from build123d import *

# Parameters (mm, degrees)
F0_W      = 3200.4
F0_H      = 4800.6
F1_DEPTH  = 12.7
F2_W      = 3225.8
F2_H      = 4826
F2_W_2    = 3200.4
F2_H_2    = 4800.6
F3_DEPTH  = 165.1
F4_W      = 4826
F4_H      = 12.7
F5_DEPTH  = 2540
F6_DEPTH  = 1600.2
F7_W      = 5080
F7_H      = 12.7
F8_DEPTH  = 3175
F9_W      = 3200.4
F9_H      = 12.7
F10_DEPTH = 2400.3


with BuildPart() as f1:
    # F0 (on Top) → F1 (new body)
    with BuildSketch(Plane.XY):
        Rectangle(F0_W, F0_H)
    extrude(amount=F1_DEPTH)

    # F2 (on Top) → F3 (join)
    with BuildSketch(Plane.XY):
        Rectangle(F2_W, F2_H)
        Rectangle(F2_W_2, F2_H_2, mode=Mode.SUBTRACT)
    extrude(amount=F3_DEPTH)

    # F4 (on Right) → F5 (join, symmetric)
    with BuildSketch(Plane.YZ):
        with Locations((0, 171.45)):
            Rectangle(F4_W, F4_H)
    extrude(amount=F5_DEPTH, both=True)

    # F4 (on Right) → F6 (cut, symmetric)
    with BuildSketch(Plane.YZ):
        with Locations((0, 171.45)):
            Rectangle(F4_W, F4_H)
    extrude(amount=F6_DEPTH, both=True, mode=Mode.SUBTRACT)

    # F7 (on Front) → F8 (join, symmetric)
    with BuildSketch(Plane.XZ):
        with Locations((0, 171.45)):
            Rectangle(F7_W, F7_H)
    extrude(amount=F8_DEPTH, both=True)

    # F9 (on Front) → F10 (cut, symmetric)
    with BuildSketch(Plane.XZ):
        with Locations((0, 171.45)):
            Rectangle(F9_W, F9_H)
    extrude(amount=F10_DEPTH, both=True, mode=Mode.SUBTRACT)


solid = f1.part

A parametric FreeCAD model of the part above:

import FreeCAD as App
import Part
import Sketcher
Q = App.Units.Quantity

doc = App.newDocument("Part")
body = doc.addObject("PartDesign::Body", "Body")

# Sketch on XY plane
sketch1 = doc.addObject("Sketcher::SketchObject", "Sketch")
body.addObject(sketch1)
sketch1.AttachmentSupport = (doc.XY_Plane, [""])
sketch1.MapMode = "FlatFace"
sketch1.addGeometry([
    Part.LineSegment(App.Vector(-1600, 2400, 0), App.Vector(-1600, -2400, 0)),
    Part.LineSegment(App.Vector(-1600, -2400, 0), App.Vector(1600, -2400, 0)),
    Part.LineSegment(App.Vector(1600, -2400, 0), App.Vector(1600, 2400, 0)),
    Part.LineSegment(App.Vector(1600, 2400, 0), App.Vector(-1600, 2400, 0)),
], False)
sketch1.addConstraint([
    Sketcher.Constraint("Coincident", 0, 2, 1, 1),
    Sketcher.Constraint("Coincident", 1, 2, 2, 1),
    Sketcher.Constraint("Coincident", 2, 2, 3, 1),
    Sketcher.Constraint("Coincident", 3, 2, 0, 1),
    Sketcher.Constraint("Vertical", 0),
    Sketcher.Constraint("Horizontal", 1),
    Sketcher.Constraint("Vertical", 2),
    Sketcher.Constraint("Horizontal", 3),
    Sketcher.Constraint("Symmetric", 0, 2, 2, 2, -1, 1),
    Sketcher.Constraint("DistanceX", 1, 1, 1, 2, Q("126 in")),
    Sketcher.Constraint("DistanceY", 0, 2, 0, 1, Q("189 in")),
])
pad1 = doc.addObject("PartDesign::Pad", "Pad")
body.addObject(pad1)
pad1.Profile = sketch1
pad1.Length = Q("0.5 in")

# Sketch on XY plane
sketch2 = doc.addObject("Sketcher::SketchObject", "Sketch001")
body.addObject(sketch2)
sketch2.AttachmentSupport = (doc.XY_Plane, [""])
sketch2.MapMode = "FlatFace"
sketch2.addGeometry([
    Part.LineSegment(App.Vector(-1613, 2413, 0), App.Vector(-1613, -2413, 0)),  # 0
    Part.LineSegment(App.Vector(-1613, -2413, 0), App.Vector(1613, -2413, 0)),  # 1
    Part.LineSegment(App.Vector(1613, -2413, 0), App.Vector(1613, 2413, 0)),  # 2
    Part.LineSegment(App.Vector(1613, 2413, 0), App.Vector(-1613, 2413, 0)),  # 3
    Part.LineSegment(App.Vector(1600, -2400, 0), App.Vector(-1600, -2400, 0)),  # 4
    Part.LineSegment(App.Vector(-1600, -2400, 0), App.Vector(-1600, 2400, 0)),  # 5
    Part.LineSegment(App.Vector(-1600, 2400, 0), App.Vector(1600, 2400, 0)),  # 6
    Part.LineSegment(App.Vector(1600, 2400, 0), App.Vector(1600, -2400, 0)),  # 7
], False)
sketch2.addConstraint([
    Sketcher.Constraint("Coincident", 0, 2, 1, 1),
    Sketcher.Constraint("Coincident", 1, 2, 2, 1),
    Sketcher.Constraint("Coincident", 2, 2, 3, 1),
    Sketcher.Constraint("Coincident", 3, 2, 0, 1),
    Sketcher.Constraint("Coincident", 4, 2, 5, 1),
    Sketcher.Constraint("Coincident", 5, 2, 6, 1),
    Sketcher.Constraint("Coincident", 6, 2, 7, 1),
    Sketcher.Constraint("Coincident", 7, 2, 4, 1),
    Sketcher.Constraint("Vertical", 0),
    Sketcher.Constraint("Horizontal", 1),
    Sketcher.Constraint("Vertical", 2),
    Sketcher.Constraint("Horizontal", 3),
    Sketcher.Constraint("Horizontal", 4),
    Sketcher.Constraint("Vertical", 5),
    Sketcher.Constraint("Horizontal", 6),
    Sketcher.Constraint("Vertical", 7),
    Sketcher.Constraint("Symmetric", 0, 2, 2, 2, -1, 1),
    Sketcher.Constraint("Symmetric", 4, 2, 6, 2, -1, 1),
    Sketcher.Constraint("DistanceX", 1, 1, 1, 2, Q("127 in")),
    Sketcher.Constraint("DistanceX", 4, 2, 4, 1, Q("126 in")),
    Sketcher.Constraint("DistanceY", 0, 2, 0, 1, Q("190 in")),
    Sketcher.Constraint("DistanceY", 5, 1, 5, 2, Q("189 in")),
])
pad2 = doc.addObject("PartDesign::Pad", "Pad001")
body.addObject(pad2)
pad2.Profile = sketch2
pad2.Length = Q("6.5 in")

# Sketch on YZ plane
sketch3 = doc.addObject("Sketcher::SketchObject", "Sketch002")
body.addObject(sketch3)
sketch3.AttachmentSupport = (doc.YZ_Plane, [""])
sketch3.MapMode = "FlatFace"
sketch3.addGeometry([
    Part.LineSegment(App.Vector(-2413, 178, 0), App.Vector(-2413, 165, 0)),
    Part.LineSegment(App.Vector(-2413, 165, 0), App.Vector(2413, 165, 0)),
    Part.LineSegment(App.Vector(2413, 165, 0), App.Vector(2413, 178, 0)),
    Part.LineSegment(App.Vector(2413, 178, 0), App.Vector(-2413, 178, 0)),
], False)
sketch3.addConstraint([
    Sketcher.Constraint("Coincident", 0, 2, 1, 1),
    Sketcher.Constraint("Coincident", 1, 2, 2, 1),
    Sketcher.Constraint("Coincident", 2, 2, 3, 1),
    Sketcher.Constraint("Coincident", 3, 2, 0, 1),
    Sketcher.Constraint("Vertical", 0),
    Sketcher.Constraint("Horizontal", 1),
    Sketcher.Constraint("Vertical", 2),
    Sketcher.Constraint("Horizontal", 3),
    Sketcher.Constraint("DistanceX", 1, 1, 1, 2, Q("190 in")),
    Sketcher.Constraint("DistanceY", 0, 2, 0, 1, Q("0.5 in")),
    Sketcher.Constraint("DistanceX", 0, 2, -1, 1, Q("95 in")),
    Sketcher.Constraint("DistanceY", -1, 1, 2, 2, Q("7 in")),
])
pad3 = doc.addObject("PartDesign::Pad", "Pad002")
body.addObject(pad3)
pad3.Profile = sketch3
pad3.Length = Q("200 in")
pad3.Midplane = True

# Sketch on YZ plane
sketch4 = doc.addObject("Sketcher::SketchObject", "Sketch003")
body.addObject(sketch4)
sketch4.AttachmentSupport = (doc.YZ_Plane, [""])
sketch4.MapMode = "FlatFace"
sketch4.addGeometry([
    Part.LineSegment(App.Vector(-2413, 178, 0), App.Vector(-2413, 165, 0)),
    Part.LineSegment(App.Vector(-2413, 165, 0), App.Vector(2413, 165, 0)),
    Part.LineSegment(App.Vector(2413, 165, 0), App.Vector(2413, 178, 0)),
    Part.LineSegment(App.Vector(2413, 178, 0), App.Vector(-2413, 178, 0)),
], False)
sketch4.addConstraint([
    Sketcher.Constraint("Coincident", 0, 2, 1, 1),
    Sketcher.Constraint("Coincident", 1, 2, 2, 1),
    Sketcher.Constraint("Coincident", 2, 2, 3, 1),
    Sketcher.Constraint("Coincident", 3, 2, 0, 1),
    Sketcher.Constraint("Vertical", 0),
    Sketcher.Constraint("Horizontal", 1),
    Sketcher.Constraint("Vertical", 2),
    Sketcher.Constraint("Horizontal", 3),
    Sketcher.Constraint("DistanceX", 1, 1, 1, 2, Q("190 in")),
    Sketcher.Constraint("DistanceY", 0, 2, 0, 1, Q("0.5 in")),
    Sketcher.Constraint("DistanceX", 0, 2, -1, 1, Q("95 in")),
    Sketcher.Constraint("DistanceY", -1, 1, 2, 2, Q("7 in")),
])
pocket1 = doc.addObject("PartDesign::Pocket", "Pocket")
body.addObject(pocket1)
pocket1.Profile = sketch4
pocket1.Length = Q("126 in")
pocket1.Midplane = True

# Sketch on XZ plane
sketch5 = doc.addObject("Sketcher::SketchObject", "Sketch004")
body.addObject(sketch5)
sketch5.AttachmentSupport = (doc.XZ_Plane, [""])
sketch5.MapMode = "FlatFace"
sketch5.addGeometry([
    Part.LineSegment(App.Vector(-2540, 178, 0), App.Vector(-2540, 165, 0)),
    Part.LineSegment(App.Vector(-2540, 165, 0), App.Vector(2540, 165, 0)),
    Part.LineSegment(App.Vector(2540, 165, 0), App.Vector(2540, 178, 0)),
    Part.LineSegment(App.Vector(2540, 178, 0), App.Vector(-2540, 178, 0)),
], False)
sketch5.addConstraint([
    Sketcher.Constraint("Coincident", 0, 2, 1, 1),
    Sketcher.Constraint("Coincident", 1, 2, 2, 1),
    Sketcher.Constraint("Coincident", 2, 2, 3, 1),
    Sketcher.Constraint("Coincident", 3, 2, 0, 1),
    Sketcher.Constraint("Vertical", 0),
    Sketcher.Constraint("Horizontal", 1),
    Sketcher.Constraint("Vertical", 2),
    Sketcher.Constraint("Horizontal", 3),
    Sketcher.Constraint("DistanceX", 1, 1, 1, 2, Q("200 in")),
    Sketcher.Constraint("DistanceY", 0, 2, 0, 1, Q("0.5 in")),
    Sketcher.Constraint("DistanceX", 0, 2, -1, 1, Q("100 in")),
    Sketcher.Constraint("DistanceY", -1, 1, 2, 2, Q("7 in")),
])
pad4 = doc.addObject("PartDesign::Pad", "Pad003")
body.addObject(pad4)
pad4.Profile = sketch5
pad4.Length = Q("250 in")
pad4.Midplane = True

# Sketch on XZ plane
sketch6 = doc.addObject("Sketcher::SketchObject", "Sketch005")
body.addObject(sketch6)
sketch6.AttachmentSupport = (doc.XZ_Plane, [""])
sketch6.MapMode = "FlatFace"
sketch6.addGeometry([
    Part.LineSegment(App.Vector(-1600, 178, 0), App.Vector(-1600, 165, 0)),
    Part.LineSegment(App.Vector(-1600, 165, 0), App.Vector(1600, 165, 0)),
    Part.LineSegment(App.Vector(1600, 165, 0), App.Vector(1600, 178, 0)),
    Part.LineSegment(App.Vector(1600, 178, 0), App.Vector(-1600, 178, 0)),
], False)
sketch6.addConstraint([
    Sketcher.Constraint("Coincident", 0, 2, 1, 1),
    Sketcher.Constraint("Coincident", 1, 2, 2, 1),
    Sketcher.Constraint("Coincident", 2, 2, 3, 1),
    Sketcher.Constraint("Coincident", 3, 2, 0, 1),
    Sketcher.Constraint("Vertical", 0),
    Sketcher.Constraint("Horizontal", 1),
    Sketcher.Constraint("Vertical", 2),
    Sketcher.Constraint("Horizontal", 3),
    Sketcher.Constraint("DistanceX", 1, 1, 1, 2, Q("126 in")),
    Sketcher.Constraint("DistanceY", 0, 2, 0, 1, Q("0.5 in")),
    Sketcher.Constraint("DistanceX", 0, 2, -1, 1, Q("63 in")),
    Sketcher.Constraint("DistanceY", -1, 1, 2, 2, Q("7 in")),
])
pocket2 = doc.addObject("PartDesign::Pocket", "Pocket001")
body.addObject(pocket2)
pocket2.Profile = sketch6
pocket2.Length = Q("189 in")
pocket2.Midplane = True

doc.recompute()
